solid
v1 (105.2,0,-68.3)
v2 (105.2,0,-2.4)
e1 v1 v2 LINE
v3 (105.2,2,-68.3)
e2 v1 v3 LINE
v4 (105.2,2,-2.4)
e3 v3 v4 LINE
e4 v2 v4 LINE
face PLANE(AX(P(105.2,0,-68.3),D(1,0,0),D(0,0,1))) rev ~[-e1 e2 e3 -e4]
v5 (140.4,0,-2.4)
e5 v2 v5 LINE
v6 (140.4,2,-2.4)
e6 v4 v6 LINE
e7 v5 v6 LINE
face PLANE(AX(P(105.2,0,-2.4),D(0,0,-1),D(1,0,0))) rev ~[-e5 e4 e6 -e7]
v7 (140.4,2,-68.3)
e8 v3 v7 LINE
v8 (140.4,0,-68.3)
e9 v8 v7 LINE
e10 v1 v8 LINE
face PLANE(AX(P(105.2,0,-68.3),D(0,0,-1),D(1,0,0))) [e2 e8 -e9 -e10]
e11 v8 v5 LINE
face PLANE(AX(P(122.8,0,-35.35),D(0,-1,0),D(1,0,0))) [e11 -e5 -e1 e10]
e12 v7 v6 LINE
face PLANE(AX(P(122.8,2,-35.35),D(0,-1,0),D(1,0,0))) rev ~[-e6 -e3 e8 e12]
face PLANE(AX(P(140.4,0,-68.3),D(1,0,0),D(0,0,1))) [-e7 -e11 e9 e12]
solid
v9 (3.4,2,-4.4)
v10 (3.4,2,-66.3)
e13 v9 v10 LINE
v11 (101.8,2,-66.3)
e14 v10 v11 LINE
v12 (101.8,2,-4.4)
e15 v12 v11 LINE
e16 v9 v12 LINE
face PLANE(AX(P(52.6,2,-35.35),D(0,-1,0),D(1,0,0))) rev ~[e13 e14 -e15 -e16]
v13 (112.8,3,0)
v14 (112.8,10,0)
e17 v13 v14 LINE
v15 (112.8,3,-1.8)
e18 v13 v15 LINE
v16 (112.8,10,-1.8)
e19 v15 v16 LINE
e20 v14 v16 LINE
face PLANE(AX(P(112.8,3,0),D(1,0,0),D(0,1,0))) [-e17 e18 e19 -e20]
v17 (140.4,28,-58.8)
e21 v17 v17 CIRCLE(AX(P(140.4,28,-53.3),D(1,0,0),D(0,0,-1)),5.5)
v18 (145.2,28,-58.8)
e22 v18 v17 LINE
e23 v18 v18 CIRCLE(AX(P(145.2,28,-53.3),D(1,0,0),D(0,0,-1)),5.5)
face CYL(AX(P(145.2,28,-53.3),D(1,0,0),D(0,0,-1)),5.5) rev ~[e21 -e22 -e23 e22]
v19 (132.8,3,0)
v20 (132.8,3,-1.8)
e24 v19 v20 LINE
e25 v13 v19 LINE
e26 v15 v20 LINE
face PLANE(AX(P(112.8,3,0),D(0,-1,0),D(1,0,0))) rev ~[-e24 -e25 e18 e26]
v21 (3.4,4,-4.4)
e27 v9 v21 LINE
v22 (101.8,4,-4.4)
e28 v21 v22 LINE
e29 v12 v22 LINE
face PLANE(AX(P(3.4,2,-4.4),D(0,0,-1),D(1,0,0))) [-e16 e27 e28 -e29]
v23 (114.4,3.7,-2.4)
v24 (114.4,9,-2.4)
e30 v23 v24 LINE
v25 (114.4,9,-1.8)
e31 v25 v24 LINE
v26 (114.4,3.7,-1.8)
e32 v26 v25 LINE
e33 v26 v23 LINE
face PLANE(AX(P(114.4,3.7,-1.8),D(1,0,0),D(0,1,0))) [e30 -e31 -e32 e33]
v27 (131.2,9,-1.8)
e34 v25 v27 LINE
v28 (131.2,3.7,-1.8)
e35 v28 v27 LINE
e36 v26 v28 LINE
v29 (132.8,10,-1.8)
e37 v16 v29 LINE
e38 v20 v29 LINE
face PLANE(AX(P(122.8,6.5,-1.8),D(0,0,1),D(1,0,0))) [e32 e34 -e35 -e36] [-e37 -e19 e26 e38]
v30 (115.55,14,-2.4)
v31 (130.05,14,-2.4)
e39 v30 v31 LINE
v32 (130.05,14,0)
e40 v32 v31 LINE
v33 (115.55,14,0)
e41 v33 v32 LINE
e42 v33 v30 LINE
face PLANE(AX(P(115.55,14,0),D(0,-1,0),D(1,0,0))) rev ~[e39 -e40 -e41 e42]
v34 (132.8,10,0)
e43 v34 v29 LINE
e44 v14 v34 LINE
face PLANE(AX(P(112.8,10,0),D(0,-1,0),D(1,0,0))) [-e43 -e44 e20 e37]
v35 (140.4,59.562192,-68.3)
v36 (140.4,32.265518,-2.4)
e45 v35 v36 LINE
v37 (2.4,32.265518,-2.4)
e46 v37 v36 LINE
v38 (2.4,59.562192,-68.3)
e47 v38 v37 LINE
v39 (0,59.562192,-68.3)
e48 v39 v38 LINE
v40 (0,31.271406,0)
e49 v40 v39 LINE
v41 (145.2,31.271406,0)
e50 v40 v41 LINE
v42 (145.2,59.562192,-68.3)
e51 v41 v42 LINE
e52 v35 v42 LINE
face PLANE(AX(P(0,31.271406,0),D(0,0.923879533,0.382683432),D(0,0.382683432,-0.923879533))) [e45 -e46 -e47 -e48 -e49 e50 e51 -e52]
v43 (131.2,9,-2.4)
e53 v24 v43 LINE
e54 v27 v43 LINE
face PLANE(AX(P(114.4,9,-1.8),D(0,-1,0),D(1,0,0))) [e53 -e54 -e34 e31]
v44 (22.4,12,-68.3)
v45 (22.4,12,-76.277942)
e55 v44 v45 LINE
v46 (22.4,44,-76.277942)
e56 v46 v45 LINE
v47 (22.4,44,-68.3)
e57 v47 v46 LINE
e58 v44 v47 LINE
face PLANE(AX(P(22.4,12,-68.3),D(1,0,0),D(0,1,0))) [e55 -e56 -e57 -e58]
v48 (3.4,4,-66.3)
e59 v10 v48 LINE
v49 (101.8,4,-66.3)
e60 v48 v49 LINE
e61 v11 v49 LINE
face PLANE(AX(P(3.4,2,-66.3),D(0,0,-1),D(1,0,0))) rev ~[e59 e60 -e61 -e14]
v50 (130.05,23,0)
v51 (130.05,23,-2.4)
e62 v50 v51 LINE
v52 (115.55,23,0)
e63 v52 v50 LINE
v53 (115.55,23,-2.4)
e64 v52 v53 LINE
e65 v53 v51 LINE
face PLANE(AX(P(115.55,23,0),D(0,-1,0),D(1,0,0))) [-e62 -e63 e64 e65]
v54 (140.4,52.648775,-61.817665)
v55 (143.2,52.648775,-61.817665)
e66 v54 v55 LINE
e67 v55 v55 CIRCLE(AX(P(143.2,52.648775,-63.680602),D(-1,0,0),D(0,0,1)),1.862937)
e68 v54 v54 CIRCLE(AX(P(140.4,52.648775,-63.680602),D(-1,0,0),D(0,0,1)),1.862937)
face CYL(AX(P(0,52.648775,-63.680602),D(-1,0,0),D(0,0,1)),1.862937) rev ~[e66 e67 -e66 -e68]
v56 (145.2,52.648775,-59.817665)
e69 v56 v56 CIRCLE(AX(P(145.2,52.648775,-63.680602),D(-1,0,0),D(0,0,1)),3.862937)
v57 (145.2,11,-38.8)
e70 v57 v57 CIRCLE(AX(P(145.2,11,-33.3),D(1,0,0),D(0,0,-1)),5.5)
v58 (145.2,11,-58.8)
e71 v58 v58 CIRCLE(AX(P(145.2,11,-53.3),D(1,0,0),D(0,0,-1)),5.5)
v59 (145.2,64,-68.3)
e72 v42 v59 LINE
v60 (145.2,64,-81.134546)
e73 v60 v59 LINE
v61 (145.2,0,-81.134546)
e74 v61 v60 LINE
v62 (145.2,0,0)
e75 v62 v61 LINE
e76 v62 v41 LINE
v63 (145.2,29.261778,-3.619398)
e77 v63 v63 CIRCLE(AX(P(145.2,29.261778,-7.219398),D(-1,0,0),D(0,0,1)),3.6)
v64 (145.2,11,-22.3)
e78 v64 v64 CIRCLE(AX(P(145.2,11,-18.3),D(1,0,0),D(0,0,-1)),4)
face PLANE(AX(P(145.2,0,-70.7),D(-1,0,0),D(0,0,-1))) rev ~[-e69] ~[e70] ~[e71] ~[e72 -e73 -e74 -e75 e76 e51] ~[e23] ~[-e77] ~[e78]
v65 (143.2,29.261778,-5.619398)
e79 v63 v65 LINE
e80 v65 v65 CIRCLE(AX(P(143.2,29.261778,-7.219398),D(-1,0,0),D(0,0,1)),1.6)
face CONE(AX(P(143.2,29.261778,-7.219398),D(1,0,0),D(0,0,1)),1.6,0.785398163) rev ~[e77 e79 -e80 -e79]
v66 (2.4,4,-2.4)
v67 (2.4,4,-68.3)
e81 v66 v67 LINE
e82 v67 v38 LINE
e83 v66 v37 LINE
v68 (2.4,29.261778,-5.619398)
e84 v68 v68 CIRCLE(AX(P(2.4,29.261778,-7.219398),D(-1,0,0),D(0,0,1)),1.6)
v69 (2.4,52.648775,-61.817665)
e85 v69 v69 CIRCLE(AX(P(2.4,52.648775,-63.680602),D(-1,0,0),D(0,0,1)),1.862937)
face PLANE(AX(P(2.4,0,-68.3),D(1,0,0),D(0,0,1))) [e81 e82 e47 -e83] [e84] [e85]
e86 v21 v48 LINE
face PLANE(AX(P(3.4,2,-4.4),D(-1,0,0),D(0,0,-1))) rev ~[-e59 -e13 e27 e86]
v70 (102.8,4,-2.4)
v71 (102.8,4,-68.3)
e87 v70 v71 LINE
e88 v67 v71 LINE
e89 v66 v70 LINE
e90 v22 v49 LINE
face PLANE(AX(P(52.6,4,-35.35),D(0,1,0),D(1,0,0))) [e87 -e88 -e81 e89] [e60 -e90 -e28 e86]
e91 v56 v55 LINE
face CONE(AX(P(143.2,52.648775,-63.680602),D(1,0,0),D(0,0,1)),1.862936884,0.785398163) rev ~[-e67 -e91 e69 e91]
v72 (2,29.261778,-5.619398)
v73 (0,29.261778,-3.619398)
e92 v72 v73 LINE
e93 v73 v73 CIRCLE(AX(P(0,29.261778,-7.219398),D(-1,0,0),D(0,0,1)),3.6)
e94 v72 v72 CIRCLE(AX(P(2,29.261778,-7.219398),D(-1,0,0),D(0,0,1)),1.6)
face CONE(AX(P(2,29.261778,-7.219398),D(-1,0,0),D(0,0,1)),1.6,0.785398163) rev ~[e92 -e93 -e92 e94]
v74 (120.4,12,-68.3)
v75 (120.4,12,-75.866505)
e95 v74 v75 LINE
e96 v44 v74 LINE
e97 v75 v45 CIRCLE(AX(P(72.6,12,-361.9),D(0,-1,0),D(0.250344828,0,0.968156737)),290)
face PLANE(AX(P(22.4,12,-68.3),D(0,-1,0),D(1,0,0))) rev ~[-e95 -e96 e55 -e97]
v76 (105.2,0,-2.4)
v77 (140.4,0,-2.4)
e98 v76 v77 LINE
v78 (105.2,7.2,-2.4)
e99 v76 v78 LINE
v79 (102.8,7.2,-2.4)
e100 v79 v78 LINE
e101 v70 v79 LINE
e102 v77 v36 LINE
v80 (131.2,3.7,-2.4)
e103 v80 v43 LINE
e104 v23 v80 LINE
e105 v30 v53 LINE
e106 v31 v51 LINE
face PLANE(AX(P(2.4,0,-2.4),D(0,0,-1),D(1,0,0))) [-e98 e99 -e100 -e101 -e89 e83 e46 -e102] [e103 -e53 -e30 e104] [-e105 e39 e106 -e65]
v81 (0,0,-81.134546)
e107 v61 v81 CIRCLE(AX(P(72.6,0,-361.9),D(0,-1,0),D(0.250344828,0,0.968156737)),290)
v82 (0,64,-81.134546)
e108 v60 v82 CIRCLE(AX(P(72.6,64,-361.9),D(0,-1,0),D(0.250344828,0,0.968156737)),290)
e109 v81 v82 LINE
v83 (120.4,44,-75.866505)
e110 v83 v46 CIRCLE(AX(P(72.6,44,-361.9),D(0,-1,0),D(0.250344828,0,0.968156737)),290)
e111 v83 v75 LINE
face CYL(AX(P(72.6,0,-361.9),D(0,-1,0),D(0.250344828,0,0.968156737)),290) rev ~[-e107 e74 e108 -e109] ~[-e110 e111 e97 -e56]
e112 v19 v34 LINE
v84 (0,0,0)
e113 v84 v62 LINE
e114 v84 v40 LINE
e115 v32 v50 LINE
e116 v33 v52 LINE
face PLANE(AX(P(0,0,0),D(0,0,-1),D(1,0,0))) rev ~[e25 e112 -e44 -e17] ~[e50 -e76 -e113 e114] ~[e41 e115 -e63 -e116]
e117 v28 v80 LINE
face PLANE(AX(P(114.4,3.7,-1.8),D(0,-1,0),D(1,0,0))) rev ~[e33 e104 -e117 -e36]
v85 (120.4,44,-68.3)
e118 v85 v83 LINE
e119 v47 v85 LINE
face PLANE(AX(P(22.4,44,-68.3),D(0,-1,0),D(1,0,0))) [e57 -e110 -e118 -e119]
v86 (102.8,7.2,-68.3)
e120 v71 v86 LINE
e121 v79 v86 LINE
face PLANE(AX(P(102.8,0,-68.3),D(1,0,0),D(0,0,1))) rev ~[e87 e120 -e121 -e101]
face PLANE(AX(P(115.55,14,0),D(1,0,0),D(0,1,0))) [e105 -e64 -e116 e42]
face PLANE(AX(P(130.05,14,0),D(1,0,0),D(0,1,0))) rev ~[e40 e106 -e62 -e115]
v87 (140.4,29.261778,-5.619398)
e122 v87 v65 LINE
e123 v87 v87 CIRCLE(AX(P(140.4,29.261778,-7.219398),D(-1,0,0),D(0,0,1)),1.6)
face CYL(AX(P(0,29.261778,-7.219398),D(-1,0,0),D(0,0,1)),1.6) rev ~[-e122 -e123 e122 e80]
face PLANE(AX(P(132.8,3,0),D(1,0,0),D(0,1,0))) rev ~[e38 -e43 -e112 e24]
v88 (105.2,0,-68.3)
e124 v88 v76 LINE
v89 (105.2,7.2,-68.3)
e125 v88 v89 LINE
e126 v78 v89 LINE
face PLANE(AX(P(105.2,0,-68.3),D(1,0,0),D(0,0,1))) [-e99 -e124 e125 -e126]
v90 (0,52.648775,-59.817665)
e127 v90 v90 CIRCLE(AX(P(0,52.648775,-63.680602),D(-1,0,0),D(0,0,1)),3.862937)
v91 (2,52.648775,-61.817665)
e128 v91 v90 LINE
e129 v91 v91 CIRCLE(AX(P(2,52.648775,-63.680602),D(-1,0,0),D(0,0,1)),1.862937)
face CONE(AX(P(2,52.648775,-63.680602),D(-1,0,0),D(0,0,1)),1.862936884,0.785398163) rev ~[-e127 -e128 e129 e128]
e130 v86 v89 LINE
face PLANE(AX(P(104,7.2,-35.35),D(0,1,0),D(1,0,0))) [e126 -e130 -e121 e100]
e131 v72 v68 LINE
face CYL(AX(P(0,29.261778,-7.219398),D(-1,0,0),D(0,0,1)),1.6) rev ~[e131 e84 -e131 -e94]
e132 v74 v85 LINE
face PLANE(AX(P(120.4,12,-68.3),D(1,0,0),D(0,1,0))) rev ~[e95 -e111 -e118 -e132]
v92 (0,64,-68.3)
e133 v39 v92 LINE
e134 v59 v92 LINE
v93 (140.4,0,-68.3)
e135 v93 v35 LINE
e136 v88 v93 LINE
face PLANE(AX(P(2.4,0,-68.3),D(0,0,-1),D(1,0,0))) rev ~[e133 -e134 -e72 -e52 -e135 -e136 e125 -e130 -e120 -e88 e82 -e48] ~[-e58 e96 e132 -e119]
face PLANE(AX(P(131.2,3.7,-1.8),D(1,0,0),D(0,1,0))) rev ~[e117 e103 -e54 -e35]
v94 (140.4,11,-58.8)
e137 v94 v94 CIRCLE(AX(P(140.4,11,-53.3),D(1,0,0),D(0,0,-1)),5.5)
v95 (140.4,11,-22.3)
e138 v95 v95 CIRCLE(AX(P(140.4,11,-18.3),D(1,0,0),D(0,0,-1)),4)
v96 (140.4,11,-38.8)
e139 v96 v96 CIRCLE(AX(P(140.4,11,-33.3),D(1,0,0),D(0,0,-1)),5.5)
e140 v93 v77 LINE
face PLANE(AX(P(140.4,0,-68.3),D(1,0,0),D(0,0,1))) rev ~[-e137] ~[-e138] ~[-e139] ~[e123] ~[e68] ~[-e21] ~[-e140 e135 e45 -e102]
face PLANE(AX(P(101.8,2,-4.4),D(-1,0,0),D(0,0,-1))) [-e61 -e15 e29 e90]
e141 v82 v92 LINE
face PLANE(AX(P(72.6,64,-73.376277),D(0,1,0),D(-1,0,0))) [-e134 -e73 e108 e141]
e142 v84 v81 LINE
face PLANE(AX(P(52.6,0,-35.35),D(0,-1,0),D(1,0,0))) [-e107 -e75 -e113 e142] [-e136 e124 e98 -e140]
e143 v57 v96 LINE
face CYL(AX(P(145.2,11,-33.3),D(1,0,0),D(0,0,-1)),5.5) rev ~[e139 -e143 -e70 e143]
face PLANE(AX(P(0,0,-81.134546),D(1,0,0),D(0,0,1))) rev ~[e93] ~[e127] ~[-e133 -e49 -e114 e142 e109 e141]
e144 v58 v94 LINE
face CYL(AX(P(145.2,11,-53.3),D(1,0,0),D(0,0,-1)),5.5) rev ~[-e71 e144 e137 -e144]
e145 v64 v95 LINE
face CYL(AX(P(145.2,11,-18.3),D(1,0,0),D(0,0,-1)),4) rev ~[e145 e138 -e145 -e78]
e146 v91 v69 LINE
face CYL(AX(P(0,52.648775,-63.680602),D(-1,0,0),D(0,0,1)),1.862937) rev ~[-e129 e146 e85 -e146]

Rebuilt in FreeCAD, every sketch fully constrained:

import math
import FreeCAD as App
import Part
import Sketcher
from FreeCAD import Vector
Q = App.Units.Quantity


def edges_at(feature, points):
    """Names of the edges that pass closest to the given points."""
    edges = feature.Shape.Edges
    near = lambda p: min(range(len(edges)), key=lambda i: edges[i].distToShape(Part.Vertex(*p))[0])
    return sorted({f"Edge{near(p) + 1}" for p in points})


def add_polygon(sketch, points):
    """Adds a closed chain of lines whose ends are joined by coincident constraints."""
    first, n = sketch.GeometryCount, len(points)
    for a, b in zip(points, points[1:] + points[:1]):
        sketch.addGeometry(Part.LineSegment(App.Vector(*a, 0), App.Vector(*b, 0)), False)
    for i in range(n):
        sketch.addConstraint(Sketcher.Constraint("Coincident", first + i, 2, first + (i + 1) % n, 1))

doc = App.newDocument("Part")
params = doc.addObject("Spreadsheet::Sheet", "Params")
for row, (alias, value) in enumerate([
    ("sketch1_width", "145.2 mm"),
    ("sketch1_height", "70.7 mm"),
    ("pad1_length", "64 mm"),
    ("sketch2_radius", "290 mm"),
    ("sketch2_width", "145.2 mm"),
    ("pad2_length", "64 mm"),
    ("sketch3_width", "100.4 mm"),
    ("sketch3_width2", "35.2 mm"),
    ("sketch3_height", "65.9 mm"),
    ("sketch4_width", "100.4 mm"),
    ("sketch4_height", "65.9 mm"),
    ("pad3_length", "2 mm"),
    ("sketch5_width", "35.2 mm"),
    ("sketch5_height", "65.9 mm"),
    ("pad4_length", "2 mm"),
    ("sketch6_width", "100.4 mm"),
    ("sketch6_width2", "98.4 mm"),
    ("sketch6_height", "65.9 mm"),
    ("sketch6_height2", "61.9 mm"),
    ("pad5_length", "2 mm"),
    ("sketch7_width", "2.4 mm"),
    ("sketch7_height", "65.9 mm"),
    ("pocket2_length", "56.8 mm"),
    ("sketch8_height", "68.3 mm"),
    ("sketch10_width", "98 mm"),
    ("sketch10_height", "32 mm"),
    ("sketch11_diameter", "3.2 mm"),
    ("chamfer_size", "2 mm"),
    ("sketch12_diameter", "11 mm"),
    ("sketch12_diameter2", "8 mm"),
    ("pocket7_length", "4.8 mm"),
    ("sketch13_width", "20 mm"),
    ("sketch13_height", "7 mm"),
    ("pocket8_length", "1.8 mm"),
    ("sketch14_width", "16.8 mm"),
    ("sketch14_height", "5.3 mm"),
    ("pocket9_length", "0.6 mm"),
    ("sketch15_height", "9 mm"),
    ("sketch15_width", "14.5 mm"),
    ("pocket10_length", "2.4 mm"),
], start=1):
    params.set(f"A{row}", alias)
    params.set(f"B{row}", "=" + value)
    params.setAlias(f"B{row}", alias)

body = doc.addObject("PartDesign::Body", "Body")

sketch1 = body.newObject("Sketcher::SketchObject", "Sketch")
sketch1.AttachmentSupport = (doc.getObject("XZ_Plane"), [""])
sketch1.MapMode = "FlatFace"
add_polygon(sketch1, [(0, -70.7), (0, 0), (145.2, 0), (145.2, -70.7)])
sketch1.addConstraint(Sketcher.Constraint("Vertical", 0))
sketch1.addConstraint(Sketcher.Constraint("Horizontal", 1))
sketch1.addConstraint(Sketcher.Constraint("Vertical", 2))
sketch1.addConstraint(Sketcher.Constraint("Horizontal", 3))
sketch1.addConstraint(Sketcher.Constraint("Coincident", 0, 2, -1, 1))
sketch1.addConstraint(Sketcher.Constraint("DistanceX", 1, 1, 1, 2, 145.2))
sketch1.addConstraint(Sketcher.Constraint("DistanceY", 0, 1, 0, 2, 70.7))
sketch1.setExpression("Constraints[9]", "Params.sketch1_width")
sketch1.setExpression("Constraints[10]", "Params.sketch1_height")
pad1 = body.newObject("PartDesign::Pad", "Pad")
pad1.Profile = sketch1
pad1.setExpression("Length", "Params.pad1_length")
pad1.Reversed = True

sketch2 = body.newObject("Sketcher::SketchObject", "Sketch001")
sketch2.AttachmentSupport = (doc.getObject("XZ_Plane"), [""])
sketch2.MapMode = "FlatFace"
sketch2.addGeometry(Part.LineSegment(Vector(145.2, -70.7, 0), Vector(0, -70.7, 0)), False)
sketch2.addGeometry(Part.LineSegment(Vector(0, -70.7, 0), Vector(0, -81.134546, 0)), False)
sketch2.addGeometry(Part.ArcOfCircle(Part.Circle(Vector(72.6, -361.9, 0), Vector(0, 0, 1), 290), math.radians(75.502082), math.radians(104.497918)), False)
sketch2.addGeometry(Part.LineSegment(Vector(145.2, -81.134546, 0), Vector(145.2, -70.7, 0)), False)
sketch2.addConstraint(Sketcher.Constraint("Coincident", 0, 2, 1, 1))
sketch2.addConstraint(Sketcher.Constraint("Coincident", 1, 2, 2, 2))
sketch2.addConstraint(Sketcher.Constraint("Coincident", 2, 1, 3, 1))
sketch2.addConstraint(Sketcher.Constraint("Coincident", 3, 2, 0, 1))
sketch2.addConstraint(Sketcher.Constraint("Horizontal", 0))
sketch2.addConstraint(Sketcher.Constraint("Vertical", 1))
sketch2.addConstraint(Sketcher.Constraint("Vertical", 3))
sketch2.addConstraint(Sketcher.Constraint("PointOnObject", 0, 2, -2))
sketch2.addConstraint(Sketcher.Constraint("Horizontal", 1, 2, 2, 1))
sketch2.addConstraint(Sketcher.Constraint("Radius", 2, 290.0))
sketch2.addConstraint(Sketcher.Constraint("DistanceX", 0, 2, 0, 1, 145.2))
sketch2.addConstraint(Sketcher.Constraint("DistanceY", 2, 3, -1, 1, 361.9))
sketch2.addConstraint(Sketcher.Constraint("DistanceY", 0, 2, -1, 1, 70.7))
sketch2.setExpression("Constraints[9]", "Params.sketch2_radius")
sketch2.setExpression("Constraints[10]", "Params.sketch2_width")
pad2 = body.newObject("PartDesign::Pad", "Pad001")
pad2.Profile = sketch2
pad2.setExpression("Length", "Params.pad2_length")
pad2.Reversed = True

sketch3 = body.newObject("Sketcher::SketchObject", "Sketch002")
sketch3.AttachmentSupport = (doc.getObject("XZ_Plane"), [""])
sketch3.MapMode = "FlatFace"
add_polygon(sketch3, [(2.4, -2.4), (2.4, -68.3), (102.8, -68.3), (102.8, -2.4)])
add_polygon(sketch3, [(105.2, -2.4), (105.2, -68.3), (140.4, -68.3), (140.4, -2.4)])
sketch3.addConstraint(Sketcher.Constraint("Vertical", 0))
sketch3.addConstraint(Sketcher.Constraint("Horizontal", 1))
sketch3.addConstraint(Sketcher.Constraint("Vertical", 2))
sketch3.addConstraint(Sketcher.Constraint("Horizontal", 3))
sketch3.addConstraint(Sketcher.Constraint("Vertical", 4))
sketch3.addConstraint(Sketcher.Constraint("Horizontal", 5))
sketch3.addConstraint(Sketcher.Constraint("Vertical", 6))
sketch3.addConstraint(Sketcher.Constraint("Horizontal", 7))
sketch3.addConstraint(Sketcher.Constraint("Horizontal", 1, 2, 4, 2))
sketch3.addConstraint(Sketcher.Constraint("Horizontal", 3, 2, 6, 2))
sketch3.addConstraint(Sketcher.Constraint("DistanceX", 1, 1, 1, 2, 100.4))
sketch3.addConstraint(Sketcher.Constraint("DistanceX", 5, 1, 5, 2, 35.2))
sketch3.addConstraint(Sketcher.Constraint("DistanceY", 0, 2, 0, 1, 65.9))
sketch3.addConstraint(Sketcher.Constraint("DistanceX", 0, 2, 5, 2, 138.0))
sketch3.addConstraint(Sketcher.Constraint("DistanceX", -1, 1, 0, 2, 2.4))
sketch3.addConstraint(Sketcher.Constraint("DistanceY", 0, 2, -1, 1, 68.3))
sketch3.setExpression("Constraints[18]", "Params.sketch3_width")
sketch3.setExpression("Constraints[19]", "Params.sketch3_width2")
sketch3.setExpression("Constraints[20]", "Params.sketch3_height")
pocket1 = body.newObject("PartDesign::Pocket", "Pocket")
pocket1.Profile = sketch3
pocket1.Type = "ThroughAll"
body2 = doc.addObject("PartDesign::Body", "Body001")

sketch4 = body2.newObject("Sketcher::SketchObject", "Sketch003")
sketch4.AttachmentSupport = (doc.getObject("XZ_Plane001"), [""])
sketch4.MapMode = "FlatFace"
add_polygon(sketch4, [(2.4, -2.4), (2.4, -68.3), (102.8, -68.3), (102.8, -2.4)])
sketch4.addConstraint(Sketcher.Constraint("Vertical", 0))
sketch4.addConstraint(Sketcher.Constraint("Horizontal", 1))
sketch4.addConstraint(Sketcher.Constraint("Vertical", 2))
sketch4.addConstraint(Sketcher.Constraint("Horizontal", 3))
sketch4.addConstraint(Sketcher.Constraint("DistanceX", 1, 1, 1, 2, 100.4))
sketch4.addConstraint(Sketcher.Constraint("DistanceY", 0, 2, 0, 1, 65.9))
sketch4.addConstraint(Sketcher.Constraint("DistanceX", -1, 1, 0, 2, 2.4))
sketch4.addConstraint(Sketcher.Constraint("DistanceY", 0, 2, -1, 1, 68.3))
sketch4.setExpression("Constraints[8]", "Params.sketch4_width")
sketch4.setExpression("Constraints[9]", "Params.sketch4_height")
pad3 = body2.newObject("PartDesign::Pad", "Pad002")
pad3.Profile = sketch4
pad3.setExpression("Length", "Params.pad3_length")
pad3.Reversed = True
body3 = doc.addObject("PartDesign::Body", "Body002")

sketch5 = body3.newObject("Sketcher::SketchObject", "Sketch004")
sketch5.AttachmentSupport = (doc.getObject("XZ_Plane002"), [""])
sketch5.MapMode = "FlatFace"
add_polygon(sketch5, [(105.2, -2.4), (105.2, -68.3), (140.4, -68.3), (140.4, -2.4)])
sketch5.addConstraint(Sketcher.Constraint("Vertical", 0))
sketch5.addConstraint(Sketcher.Constraint("Horizontal", 1))
sketch5.addConstraint(Sketcher.Constraint("Vertical", 2))
sketch5.addConstraint(Sketcher.Constraint("Horizontal", 3))
sketch5.addConstraint(Sketcher.Constraint("DistanceX", 1, 1, 1, 2, 35.2))
sketch5.addConstraint(Sketcher.Constraint("DistanceY", 0, 2, 0, 1, 65.9))
sketch5.addConstraint(Sketcher.Constraint("DistanceX", -1, 1, 0, 2, 105.2))
sketch5.addConstraint(Sketcher.Constraint("DistanceY", 0, 2, -1, 1, 68.3))
sketch5.setExpression("Constraints[8]", "Params.sketch5_width")
sketch5.setExpression("Constraints[9]", "Params.sketch5_height")
pad4 = body3.newObject("PartDesign::Pad", "Pad003")
pad4.Profile = sketch5
pad4.setExpression("Length", "Params.pad4_length")
pad4.Reversed = True
doc.recompute()

boolean = body.newObject("PartDesign::Boolean", "Boolean")
boolean.Type = "Fuse"
boolean.addObjects([body2])

sketch6 = body.newObject("Sketcher::SketchObject", "Sketch005")
sketch6.AttachmentSupport = (doc.getObject("XZ_Plane"), [""])
sketch6.MapMode = "FlatFace"
sketch6.AttachmentOffset = App.Placement(Vector(0, 0, -2), App.Rotation())
add_polygon(sketch6, [(2.4, -68.3), (2.4, -2.4), (102.8, -2.4), (102.8, -68.3)])
add_polygon(sketch6, [(101.8, -4.4), (3.4, -4.4), (3.4, -66.3), (101.8, -66.3)])
sketch6.addConstraint(Sketcher.Constraint("Vertical", 0))
sketch6.addConstraint(Sketcher.Constraint("Horizontal", 1))
sketch6.addConstraint(Sketcher.Constraint("Vertical", 2))
sketch6.addConstraint(Sketcher.Constraint("Horizontal", 3))
sketch6.addConstraint(Sketcher.Constraint("Horizontal", 4))
sketch6.addConstraint(Sketcher.Constraint("Vertical", 5))
sketch6.addConstraint(Sketcher.Constraint("Horizontal", 6))
sketch6.addConstraint(Sketcher.Constraint("Vertical", 7))
sketch6.addConstraint(Sketcher.Constraint("DistanceX", 1, 1, 1, 2, 100.4))
sketch6.addConstraint(Sketcher.Constraint("DistanceX", 4, 2, 4, 1, 98.4))
sketch6.addConstraint(Sketcher.Constraint("DistanceY", 0, 1, 0, 2, 65.9))
sketch6.addConstraint(Sketcher.Constraint("DistanceY", 5, 2, 5, 1, 61.9))
sketch6.addConstraint(Sketcher.Constraint("DistanceX", 0, 2, 4, 2, 1.0))
sketch6.addConstraint(Sketcher.Constraint("DistanceY", 4, 2, 0, 2, 2.0))
sketch6.addConstraint(Sketcher.Constraint("DistanceX", -1, 1, 0, 2, 2.4))
sketch6.addConstraint(Sketcher.Constraint("DistanceY", 0, 2, -1, 1, 2.4))
sketch6.setExpression("Constraints[16]", "Params.sketch6_width")
sketch6.setExpression("Constraints[17]", "Params.sketch6_width2")
sketch6.setExpression("Constraints[18]", "Params.sketch6_height")
sketch6.setExpression("Constraints[19]", "Params.sketch6_height2")
pad5 = body.newObject("PartDesign::Pad", "Pad004")
pad5.Profile = sketch6
pad5.setExpression("Length", "Params.pad5_length")
pad5.Reversed = True

sketch7 = body.newObject("Sketcher::SketchObject", "Sketch006")
sketch7.AttachmentSupport = (doc.getObject("XZ_Plane"), [""])
sketch7.MapMode = "FlatFace"
sketch7.AttachmentOffset = App.Placement(Vector(0, 0, -64), App.Rotation())
add_polygon(sketch7, [(102.8, -68.3), (102.8, -2.4), (105.2, -2.4), (105.2, -68.3)])
sketch7.addConstraint(Sketcher.Constraint("Vertical", 0))
sketch7.addConstraint(Sketcher.Constraint("Horizontal", 1))
sketch7.addConstraint(Sketcher.Constraint("Vertical", 2))
sketch7.addConstraint(Sketcher.Constraint("Horizontal", 3))
sketch7.addConstraint(Sketcher.Constraint("DistanceX", 1, 1, 1, 2, 2.4))
sketch7.addConstraint(Sketcher.Constraint("DistanceY", 0, 1, 0, 2, 65.9))
sketch7.addConstraint(Sketcher.Constraint("DistanceX", -1, 1, 0, 2, 102.8))
sketch7.addConstraint(Sketcher.Constraint("DistanceY", 0, 2, -1, 1, 2.4))
sketch7.setExpression("Constraints[8]", "Params.sketch7_width")
sketch7.setExpression("Constraints[9]", "Params.sketch7_height")
pocket2 = body.newObject("PartDesign::Pocket", "Pocket001")
pocket2.Profile = sketch7
pocket2.setExpression("Length", "Params.pocket2_length")
pocket2.Reversed = True

sketch8 = body.newObject("Sketcher::SketchObject", "Sketch007")
sketch8.AttachmentSupport = (doc.getObject("YZ_Plane"), [""])
sketch8.MapMode = "FlatFace"
add_polygon(sketch8, [(64, 0), (64, -68.3), (35.709214, 0)])
sketch8.addConstraint(Sketcher.Constraint("Vertical", 0))
sketch8.addConstraint(Sketcher.Constraint("Horizontal", 2))
sketch8.addConstraint(Sketcher.Constraint("PointOnObject", 1, 2, -1))
sketch8.addConstraint(Sketcher.Constraint("DistanceY", 0, 2, 0, 1, 68.3))
sketch8.addConstraint(Sketcher.Constraint("DistanceX", -1, 1, 0, 2, 64.0))
sketch8.addConstraint(Sketcher.Constraint("Angle", 1, Q("112.5 deg")))
sketch8.setExpression("Constraints[6]", "Params.sketch8_height")
pocket3 = body.newObject("PartDesign::Pocket", "Pocket002")
pocket3.Profile = sketch8
pocket3.Type = "ThroughAll"
pocket3.Reversed = True

sketch9 = body.newObject("Sketcher::SketchObject", "Sketch008")
sketch9.AttachmentSupport = (doc.getObject("YZ_Plane"), [""])
sketch9.MapMode = "FlatFace"
add_polygon(sketch9, [(35.709214, 0), (64, -68.3), (59.562192, -68.3), (31.271406, 0)])
sketch9.addConstraint(Sketcher.Constraint("Horizontal", 1))
sketch9.addConstraint(Sketcher.Constraint("Horizontal", 3))
sketch9.addConstraint(Sketcher.Constraint("PointOnObject", 2, 2, -1))
sketch9.addConstraint(Sketcher.Constraint("Parallel", 0, 2))
sketch9.addConstraint(Sketcher.Constraint("DistanceX", -1, 1, 0, 2, 64.0))
sketch9.addConstraint(Sketcher.Constraint("Angle", 0, Q("-67.5 deg")))
sketch9.addConstraint(Sketcher.Constraint("DistanceY", 0, 2, -1, 1, 68.3))
sketch9.addConstraint(Sketcher.Constraint("DistanceX", 1, 2, 1, 1, 4.437808))
pocket4 = body.newObject("PartDesign::Pocket", "Pocket003")
pocket4.Profile = sketch9
pocket4.Type = "ThroughAll"
pocket4.Reversed = True

sketch10 = body.newObject("Sketcher::SketchObject", "Sketch009")
sketch10.AttachmentSupport = (doc.getObject("XY_Plane"), [""])
sketch10.MapMode = "FlatFace"
sketch10.AttachmentOffset = App.Placement(Vector(0, 0, -68.3), App.Rotation())
add_polygon(sketch10, [(22.4, 44), (22.4, 12), (120.4, 12), (120.4, 44)])
sketch10.addConstraint(Sketcher.Constraint("Vertical", 0))
sketch10.addConstraint(Sketcher.Constraint("Horizontal", 1))
sketch10.addConstraint(Sketcher.Constraint("Vertical", 2))
sketch10.addConstraint(Sketcher.Constraint("Horizontal", 3))
sketch10.addConstraint(Sketcher.Constraint("DistanceX", 1, 1, 1, 2, 98.0))
sketch10.addConstraint(Sketcher.Constraint("DistanceY", 0, 2, 0, 1, 32.0))
sketch10.addConstraint(Sketcher.Constraint("DistanceY", -1, 1, 0, 2, 12.0))
sketch10.addConstraint(Sketcher.Constraint("DistanceX", -1, 1, 0, 2, 22.4))
sketch10.setExpression("Constraints[8]", "Params.sketch10_width")
sketch10.setExpression("Constraints[9]", "Params.sketch10_height")
pocket5 = body.newObject("PartDesign::Pocket", "Pocket004")
pocket5.Profile = sketch10
pocket5.Type = "ThroughAll"

sketch11 = body.newObject("Sketcher::SketchObject", "Sketch010")
sketch11.AttachmentSupport = (doc.getObject("YZ_Plane"), [""])
sketch11.MapMode = "FlatFace"
sketch11.addGeometry(Part.Circle(Vector(52.648775, -63.680602, 0), Vector(0, 0, 1), 1.862937), False)
sketch11.addGeometry(Part.Circle(Vector(29.261778, -7.219398, 0), Vector(0, 0, 1), 1.6), False)
sketch11.addConstraint(Sketcher.Constraint("Diameter", 1, 3.2))
sketch11.addConstraint(Sketcher.Constraint("Diameter", 0, 3.725874))
sketch11.addConstraint(Sketcher.Constraint("DistanceX", -1, 1, 1, 3, 29.261778))
sketch11.addConstraint(Sketcher.Constraint("DistanceX", -1, 1, 0, 3, 52.648775))
sketch11.addConstraint(Sketcher.Constraint("DistanceY", 0, 3, -1, 1, 63.680602))
sketch11.addConstraint(Sketcher.Constraint("DistanceY", 1, 3, -1, 1, 7.219398))
sketch11.setExpression("Constraints[0]", "Params.sketch11_diameter")
pocket6 = body.newObject("PartDesign::Pocket", "Pocket005")
pocket6.Profile = sketch11
pocket6.Type = "ThroughAll"
pocket6.Reversed = True
doc.recompute()

chamfer = body.newObject("PartDesign::Chamfer", "Chamfer")
chamfer.Base = (pocket6, edges_at(pocket6, [
    (145.2, 52.649, -65.544),
    (0, 52.649, -65.544),
    (145.2, 29.262, -8.819),
    (0, 29.262, -8.819),
]))
chamfer.setExpression("Size", "Params.chamfer_size")

sketch12 = body.newObject("Sketcher::SketchObject", "Sketch011")
sketch12.AttachmentSupport = (doc.getObject("YZ_Plane"), [""])
sketch12.MapMode = "FlatFace"
sketch12.AttachmentOffset = App.Placement(Vector(0, 0, 145.2), App.Rotation())
sketch12.addGeometry(Part.Circle(Vector(11, -53.3, 0), Vector(0, 0, 1), 5.5), False)
sketch12.addGeometry(Part.Circle(Vector(28, -53.3, 0), Vector(0, 0, 1), 5.5), False)
sketch12.addGeometry(Part.Circle(Vector(11, -33.3, 0), Vector(0, 0, 1), 5.5), False)
sketch12.addGeometry(Part.Circle(Vector(11, -18.3, 0), Vector(0, 0, 1), 4), False)
sketch12.addConstraint(Sketcher.Constraint("Equal", 0, 1))
sketch12.addConstraint(Sketcher.Constraint("Equal", 1, 2))
sketch12.addConstraint(Sketcher.Constraint("Horizontal", 0, 3, 1, 3))
sketch12.addConstraint(Sketcher.Constraint("Vertical", 0, 3, 2, 3))
sketch12.addConstraint(Sketcher.Constraint("Vertical", 2, 3, 3, 3))
sketch12.addConstraint(Sketcher.Constraint("Diameter", 0, 11.0))
sketch12.addConstraint(Sketcher.Constraint("Diameter", 3, 8.0))
sketch12.addConstraint(Sketcher.Constraint("DistanceX", -1, 1, 0, 3, 11.0))
sketch12.addConstraint(Sketcher.Constraint("DistanceX", -1, 1, 1, 3, 28.0))
sketch12.addConstraint(Sketcher.Constraint("DistanceY", 0, 3, 2, 3, 20.0))
sketch12.addConstraint(Sketcher.Constraint("DistanceY", 2, 3, 3, 3, 15.0))
sketch12.addConstraint(Sketcher.Constraint("DistanceY", 0, 3, -1, 1, 53.3))
sketch12.setExpression("Constraints[5]", "Params.sketch12_diameter")
sketch12.setExpression("Constraints[6]", "Params.sketch12_diameter2")
pocket7 = body.newObject("PartDesign::Pocket", "Pocket006")
pocket7.Profile = sketch12
pocket7.setExpression("Length", "Params.pocket7_length")

sketch13 = body.newObject("Sketcher::SketchObject", "Sketch012")
sketch13.AttachmentSupport = (doc.getObject("XY_Plane"), [""])
sketch13.MapMode = "FlatFace"
add_polygon(sketch13, [(112.8, 10), (112.8, 3), (132.8, 3), (132.8, 10)])
sketch13.addConstraint(Sketcher.Constraint("Vertical", 0))
sketch13.addConstraint(Sketcher.Constraint("Horizontal", 1))
sketch13.addConstraint(Sketcher.Constraint("Vertical", 2))
sketch13.addConstraint(Sketcher.Constraint("Horizontal", 3))
sketch13.addConstraint(Sketcher.Constraint("DistanceX", 1, 1, 1, 2, 20.0))
sketch13.addConstraint(Sketcher.Constraint("DistanceY", 0, 2, 0, 1, 7.0))
sketch13.addConstraint(Sketcher.Constraint("DistanceY", -1, 1, 0, 2, 3.0))
sketch13.addConstraint(Sketcher.Constraint("DistanceX", -1, 1, 0, 2, 112.8))
sketch13.setExpression("Constraints[8]", "Params.sketch13_width")
sketch13.setExpression("Constraints[9]", "Params.sketch13_height")
pocket8 = body.newObject("PartDesign::Pocket", "Pocket007")
pocket8.Profile = sketch13
pocket8.setExpression("Length", "Params.pocket8_length")

sketch14 = body.newObject("Sketcher::SketchObject", "Sketch013")
sketch14.AttachmentSupport = (doc.getObject("XY_Plane"), [""])
sketch14.MapMode = "FlatFace"
sketch14.AttachmentOffset = App.Placement(Vector(0, 0, -1.8), App.Rotation())
add_polygon(sketch14, [(114.4, 9), (114.4, 3.7), (131.2, 3.7), (131.2, 9)])
sketch14.addConstraint(Sketcher.Constraint("Vertical", 0))
sketch14.addConstraint(Sketcher.Constraint("Horizontal", 1))
sketch14.addConstraint(Sketcher.Constraint("Vertical", 2))
sketch14.addConstraint(Sketcher.Constraint("Horizontal", 3))
sketch14.addConstraint(Sketcher.Constraint("DistanceX", 1, 1, 1, 2, 16.8))
sketch14.addConstraint(Sketcher.Constraint("DistanceY", 0, 2, 0, 1, 5.3))
sketch14.addConstraint(Sketcher.Constraint("DistanceY", -1, 1, 2, 2, 9.0))
sketch14.addConstraint(Sketcher.Constraint("DistanceX", -1, 1, 0, 2, 114.4))
sketch14.setExpression("Constraints[8]", "Params.sketch14_width")
sketch14.setExpression("Constraints[9]", "Params.sketch14_height")
pocket9 = body.newObject("PartDesign::Pocket", "Pocket008")
pocket9.Profile = sketch14
pocket9.setExpression("Length", "Params.pocket9_length")

sketch15 = body.newObject("Sketcher::SketchObject", "Sketch014")
sketch15.AttachmentSupport = (doc.getObject("XY_Plane"), [""])
sketch15.MapMode = "FlatFace"
add_polygon(sketch15, [(115.55, 23), (115.55, 14), (130.05, 14), (130.05, 23)])
sketch15.addConstraint(Sketcher.Constraint("Vertical", 0))
sketch15.addConstraint(Sketcher.Constraint("Horizontal", 1))
sketch15.addConstraint(Sketcher.Constraint("Vertical", 2))
sketch15.addConstraint(Sketcher.Constraint("Horizontal", 3))
sketch15.addConstraint(Sketcher.Constraint("DistanceY", 0, 2, 0, 1, 9.0))
sketch15.addConstraint(Sketcher.Constraint("DistanceX", 1, 1, 1, 2, 14.5))
sketch15.addConstraint(Sketcher.Constraint("DistanceY", -1, 1, 0, 2, 14.0))
sketch15.addConstraint(Sketcher.Constraint("DistanceX", -1, 1, 0, 2, 115.55))
sketch15.setExpression("Constraints[8]", "Params.sketch15_height")
sketch15.setExpression("Constraints[9]", "Params.sketch15_width")
pocket10 = body.newObject("PartDesign::Pocket", "Pocket009")
pocket10.Profile = sketch15
pocket10.setExpression("Length", "Params.pocket10_length")

doc.recompute()
